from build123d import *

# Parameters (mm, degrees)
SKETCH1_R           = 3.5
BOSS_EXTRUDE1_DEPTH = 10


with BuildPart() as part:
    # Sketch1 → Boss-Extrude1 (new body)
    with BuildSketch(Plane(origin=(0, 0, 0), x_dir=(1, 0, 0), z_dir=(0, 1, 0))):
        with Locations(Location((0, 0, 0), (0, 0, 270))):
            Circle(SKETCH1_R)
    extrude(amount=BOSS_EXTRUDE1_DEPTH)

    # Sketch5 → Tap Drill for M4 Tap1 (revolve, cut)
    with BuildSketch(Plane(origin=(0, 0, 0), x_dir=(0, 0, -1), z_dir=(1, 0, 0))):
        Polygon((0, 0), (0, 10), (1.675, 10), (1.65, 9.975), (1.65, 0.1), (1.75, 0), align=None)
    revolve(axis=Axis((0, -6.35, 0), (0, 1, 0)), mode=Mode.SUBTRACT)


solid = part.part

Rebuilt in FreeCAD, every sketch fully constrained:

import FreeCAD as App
import Part
import Sketcher
Q = App.Units.Quantity


def add_polygon(sketch, points):
    """Adds a closed chain of lines whose ends are joined by coincident constraints."""
    first, n = sketch.GeometryCount, len(points)
    for a, b in zip(points, points[1:] + points[:1]):
        sketch.addGeometry(Part.LineSegment(App.Vector(*a, 0), App.Vector(*b, 0)), False)
    for i in range(n):
        sketch.addConstraint(Sketcher.Constraint("Coincident", first + i, 2, first + (i + 1) % n, 1))

doc = App.newDocument("Part")
body = doc.addObject("PartDesign::Body", "Body")

# Sketch on XZ plane
sketch1 = body.newObject("Sketcher::SketchObject", "Sketch")
sketch1.AttachmentSupport = (doc.getObject("XZ_Plane"), [""])
sketch1.MapMode = "FlatFace"
sketch1.addGeometry(Part.Circle(App.Vector(0, 0, 0), App.Vector(0, 0, 1), 3.5), False)
sketch1.addConstraint([
    Sketcher.Constraint("Coincident", 0, 3, -1, 1),
    Sketcher.Constraint("Diameter", 0, Q("7 mm")),
])
pad1 = body.newObject("PartDesign::Pad", "Pad")
pad1.Profile = sketch1
pad1.Length = 10
pad1.Reversed = True

# Sketch on YZ plane
sketch2 = body.newObject("Sketcher::SketchObject", "Sketch001")
sketch2.AttachmentSupport = (doc.getObject("YZ_Plane"), [""])
sketch2.MapMode = "FlatFace"
add_polygon(sketch2, [(10, 0), (0, 0), (0, -1.75), (0.1, -1.65), (9.975, -1.65), (10, -1.675)])  # lines 0-5
sketch2.addConstraint([
    Sketcher.Constraint("Horizontal", 0),
    Sketcher.Constraint("Vertical", 1),
    Sketcher.Constraint("Horizontal", 3),
    Sketcher.Constraint("Vertical", 5),
    Sketcher.Constraint("Coincident", 0, 2, -1, 1),
    Sketcher.Constraint("Perpendicular", 2, 4),
    Sketcher.Constraint("DistanceX", 0, 2, 0, 1, Q("10 mm")),
    Sketcher.Constraint("Angle", 2, Q("45 deg")),
    Sketcher.Constraint("DistanceY", 1, 2, 1, 1, Q("1.75 mm")),
    Sketcher.Constraint("DistanceX", -1, 1, 2, 2, Q("0.1 mm")),
    Sketcher.Constraint("DistanceX", 3, 1, 3, 2, Q("9.875 mm")),
])
groove = body.newObject("PartDesign::Groove", "Groove")
groove.Profile = sketch2
groove.ReferenceAxis = (sketch2, ["H_Axis"])
groove.Angle = 360

doc.recompute()
